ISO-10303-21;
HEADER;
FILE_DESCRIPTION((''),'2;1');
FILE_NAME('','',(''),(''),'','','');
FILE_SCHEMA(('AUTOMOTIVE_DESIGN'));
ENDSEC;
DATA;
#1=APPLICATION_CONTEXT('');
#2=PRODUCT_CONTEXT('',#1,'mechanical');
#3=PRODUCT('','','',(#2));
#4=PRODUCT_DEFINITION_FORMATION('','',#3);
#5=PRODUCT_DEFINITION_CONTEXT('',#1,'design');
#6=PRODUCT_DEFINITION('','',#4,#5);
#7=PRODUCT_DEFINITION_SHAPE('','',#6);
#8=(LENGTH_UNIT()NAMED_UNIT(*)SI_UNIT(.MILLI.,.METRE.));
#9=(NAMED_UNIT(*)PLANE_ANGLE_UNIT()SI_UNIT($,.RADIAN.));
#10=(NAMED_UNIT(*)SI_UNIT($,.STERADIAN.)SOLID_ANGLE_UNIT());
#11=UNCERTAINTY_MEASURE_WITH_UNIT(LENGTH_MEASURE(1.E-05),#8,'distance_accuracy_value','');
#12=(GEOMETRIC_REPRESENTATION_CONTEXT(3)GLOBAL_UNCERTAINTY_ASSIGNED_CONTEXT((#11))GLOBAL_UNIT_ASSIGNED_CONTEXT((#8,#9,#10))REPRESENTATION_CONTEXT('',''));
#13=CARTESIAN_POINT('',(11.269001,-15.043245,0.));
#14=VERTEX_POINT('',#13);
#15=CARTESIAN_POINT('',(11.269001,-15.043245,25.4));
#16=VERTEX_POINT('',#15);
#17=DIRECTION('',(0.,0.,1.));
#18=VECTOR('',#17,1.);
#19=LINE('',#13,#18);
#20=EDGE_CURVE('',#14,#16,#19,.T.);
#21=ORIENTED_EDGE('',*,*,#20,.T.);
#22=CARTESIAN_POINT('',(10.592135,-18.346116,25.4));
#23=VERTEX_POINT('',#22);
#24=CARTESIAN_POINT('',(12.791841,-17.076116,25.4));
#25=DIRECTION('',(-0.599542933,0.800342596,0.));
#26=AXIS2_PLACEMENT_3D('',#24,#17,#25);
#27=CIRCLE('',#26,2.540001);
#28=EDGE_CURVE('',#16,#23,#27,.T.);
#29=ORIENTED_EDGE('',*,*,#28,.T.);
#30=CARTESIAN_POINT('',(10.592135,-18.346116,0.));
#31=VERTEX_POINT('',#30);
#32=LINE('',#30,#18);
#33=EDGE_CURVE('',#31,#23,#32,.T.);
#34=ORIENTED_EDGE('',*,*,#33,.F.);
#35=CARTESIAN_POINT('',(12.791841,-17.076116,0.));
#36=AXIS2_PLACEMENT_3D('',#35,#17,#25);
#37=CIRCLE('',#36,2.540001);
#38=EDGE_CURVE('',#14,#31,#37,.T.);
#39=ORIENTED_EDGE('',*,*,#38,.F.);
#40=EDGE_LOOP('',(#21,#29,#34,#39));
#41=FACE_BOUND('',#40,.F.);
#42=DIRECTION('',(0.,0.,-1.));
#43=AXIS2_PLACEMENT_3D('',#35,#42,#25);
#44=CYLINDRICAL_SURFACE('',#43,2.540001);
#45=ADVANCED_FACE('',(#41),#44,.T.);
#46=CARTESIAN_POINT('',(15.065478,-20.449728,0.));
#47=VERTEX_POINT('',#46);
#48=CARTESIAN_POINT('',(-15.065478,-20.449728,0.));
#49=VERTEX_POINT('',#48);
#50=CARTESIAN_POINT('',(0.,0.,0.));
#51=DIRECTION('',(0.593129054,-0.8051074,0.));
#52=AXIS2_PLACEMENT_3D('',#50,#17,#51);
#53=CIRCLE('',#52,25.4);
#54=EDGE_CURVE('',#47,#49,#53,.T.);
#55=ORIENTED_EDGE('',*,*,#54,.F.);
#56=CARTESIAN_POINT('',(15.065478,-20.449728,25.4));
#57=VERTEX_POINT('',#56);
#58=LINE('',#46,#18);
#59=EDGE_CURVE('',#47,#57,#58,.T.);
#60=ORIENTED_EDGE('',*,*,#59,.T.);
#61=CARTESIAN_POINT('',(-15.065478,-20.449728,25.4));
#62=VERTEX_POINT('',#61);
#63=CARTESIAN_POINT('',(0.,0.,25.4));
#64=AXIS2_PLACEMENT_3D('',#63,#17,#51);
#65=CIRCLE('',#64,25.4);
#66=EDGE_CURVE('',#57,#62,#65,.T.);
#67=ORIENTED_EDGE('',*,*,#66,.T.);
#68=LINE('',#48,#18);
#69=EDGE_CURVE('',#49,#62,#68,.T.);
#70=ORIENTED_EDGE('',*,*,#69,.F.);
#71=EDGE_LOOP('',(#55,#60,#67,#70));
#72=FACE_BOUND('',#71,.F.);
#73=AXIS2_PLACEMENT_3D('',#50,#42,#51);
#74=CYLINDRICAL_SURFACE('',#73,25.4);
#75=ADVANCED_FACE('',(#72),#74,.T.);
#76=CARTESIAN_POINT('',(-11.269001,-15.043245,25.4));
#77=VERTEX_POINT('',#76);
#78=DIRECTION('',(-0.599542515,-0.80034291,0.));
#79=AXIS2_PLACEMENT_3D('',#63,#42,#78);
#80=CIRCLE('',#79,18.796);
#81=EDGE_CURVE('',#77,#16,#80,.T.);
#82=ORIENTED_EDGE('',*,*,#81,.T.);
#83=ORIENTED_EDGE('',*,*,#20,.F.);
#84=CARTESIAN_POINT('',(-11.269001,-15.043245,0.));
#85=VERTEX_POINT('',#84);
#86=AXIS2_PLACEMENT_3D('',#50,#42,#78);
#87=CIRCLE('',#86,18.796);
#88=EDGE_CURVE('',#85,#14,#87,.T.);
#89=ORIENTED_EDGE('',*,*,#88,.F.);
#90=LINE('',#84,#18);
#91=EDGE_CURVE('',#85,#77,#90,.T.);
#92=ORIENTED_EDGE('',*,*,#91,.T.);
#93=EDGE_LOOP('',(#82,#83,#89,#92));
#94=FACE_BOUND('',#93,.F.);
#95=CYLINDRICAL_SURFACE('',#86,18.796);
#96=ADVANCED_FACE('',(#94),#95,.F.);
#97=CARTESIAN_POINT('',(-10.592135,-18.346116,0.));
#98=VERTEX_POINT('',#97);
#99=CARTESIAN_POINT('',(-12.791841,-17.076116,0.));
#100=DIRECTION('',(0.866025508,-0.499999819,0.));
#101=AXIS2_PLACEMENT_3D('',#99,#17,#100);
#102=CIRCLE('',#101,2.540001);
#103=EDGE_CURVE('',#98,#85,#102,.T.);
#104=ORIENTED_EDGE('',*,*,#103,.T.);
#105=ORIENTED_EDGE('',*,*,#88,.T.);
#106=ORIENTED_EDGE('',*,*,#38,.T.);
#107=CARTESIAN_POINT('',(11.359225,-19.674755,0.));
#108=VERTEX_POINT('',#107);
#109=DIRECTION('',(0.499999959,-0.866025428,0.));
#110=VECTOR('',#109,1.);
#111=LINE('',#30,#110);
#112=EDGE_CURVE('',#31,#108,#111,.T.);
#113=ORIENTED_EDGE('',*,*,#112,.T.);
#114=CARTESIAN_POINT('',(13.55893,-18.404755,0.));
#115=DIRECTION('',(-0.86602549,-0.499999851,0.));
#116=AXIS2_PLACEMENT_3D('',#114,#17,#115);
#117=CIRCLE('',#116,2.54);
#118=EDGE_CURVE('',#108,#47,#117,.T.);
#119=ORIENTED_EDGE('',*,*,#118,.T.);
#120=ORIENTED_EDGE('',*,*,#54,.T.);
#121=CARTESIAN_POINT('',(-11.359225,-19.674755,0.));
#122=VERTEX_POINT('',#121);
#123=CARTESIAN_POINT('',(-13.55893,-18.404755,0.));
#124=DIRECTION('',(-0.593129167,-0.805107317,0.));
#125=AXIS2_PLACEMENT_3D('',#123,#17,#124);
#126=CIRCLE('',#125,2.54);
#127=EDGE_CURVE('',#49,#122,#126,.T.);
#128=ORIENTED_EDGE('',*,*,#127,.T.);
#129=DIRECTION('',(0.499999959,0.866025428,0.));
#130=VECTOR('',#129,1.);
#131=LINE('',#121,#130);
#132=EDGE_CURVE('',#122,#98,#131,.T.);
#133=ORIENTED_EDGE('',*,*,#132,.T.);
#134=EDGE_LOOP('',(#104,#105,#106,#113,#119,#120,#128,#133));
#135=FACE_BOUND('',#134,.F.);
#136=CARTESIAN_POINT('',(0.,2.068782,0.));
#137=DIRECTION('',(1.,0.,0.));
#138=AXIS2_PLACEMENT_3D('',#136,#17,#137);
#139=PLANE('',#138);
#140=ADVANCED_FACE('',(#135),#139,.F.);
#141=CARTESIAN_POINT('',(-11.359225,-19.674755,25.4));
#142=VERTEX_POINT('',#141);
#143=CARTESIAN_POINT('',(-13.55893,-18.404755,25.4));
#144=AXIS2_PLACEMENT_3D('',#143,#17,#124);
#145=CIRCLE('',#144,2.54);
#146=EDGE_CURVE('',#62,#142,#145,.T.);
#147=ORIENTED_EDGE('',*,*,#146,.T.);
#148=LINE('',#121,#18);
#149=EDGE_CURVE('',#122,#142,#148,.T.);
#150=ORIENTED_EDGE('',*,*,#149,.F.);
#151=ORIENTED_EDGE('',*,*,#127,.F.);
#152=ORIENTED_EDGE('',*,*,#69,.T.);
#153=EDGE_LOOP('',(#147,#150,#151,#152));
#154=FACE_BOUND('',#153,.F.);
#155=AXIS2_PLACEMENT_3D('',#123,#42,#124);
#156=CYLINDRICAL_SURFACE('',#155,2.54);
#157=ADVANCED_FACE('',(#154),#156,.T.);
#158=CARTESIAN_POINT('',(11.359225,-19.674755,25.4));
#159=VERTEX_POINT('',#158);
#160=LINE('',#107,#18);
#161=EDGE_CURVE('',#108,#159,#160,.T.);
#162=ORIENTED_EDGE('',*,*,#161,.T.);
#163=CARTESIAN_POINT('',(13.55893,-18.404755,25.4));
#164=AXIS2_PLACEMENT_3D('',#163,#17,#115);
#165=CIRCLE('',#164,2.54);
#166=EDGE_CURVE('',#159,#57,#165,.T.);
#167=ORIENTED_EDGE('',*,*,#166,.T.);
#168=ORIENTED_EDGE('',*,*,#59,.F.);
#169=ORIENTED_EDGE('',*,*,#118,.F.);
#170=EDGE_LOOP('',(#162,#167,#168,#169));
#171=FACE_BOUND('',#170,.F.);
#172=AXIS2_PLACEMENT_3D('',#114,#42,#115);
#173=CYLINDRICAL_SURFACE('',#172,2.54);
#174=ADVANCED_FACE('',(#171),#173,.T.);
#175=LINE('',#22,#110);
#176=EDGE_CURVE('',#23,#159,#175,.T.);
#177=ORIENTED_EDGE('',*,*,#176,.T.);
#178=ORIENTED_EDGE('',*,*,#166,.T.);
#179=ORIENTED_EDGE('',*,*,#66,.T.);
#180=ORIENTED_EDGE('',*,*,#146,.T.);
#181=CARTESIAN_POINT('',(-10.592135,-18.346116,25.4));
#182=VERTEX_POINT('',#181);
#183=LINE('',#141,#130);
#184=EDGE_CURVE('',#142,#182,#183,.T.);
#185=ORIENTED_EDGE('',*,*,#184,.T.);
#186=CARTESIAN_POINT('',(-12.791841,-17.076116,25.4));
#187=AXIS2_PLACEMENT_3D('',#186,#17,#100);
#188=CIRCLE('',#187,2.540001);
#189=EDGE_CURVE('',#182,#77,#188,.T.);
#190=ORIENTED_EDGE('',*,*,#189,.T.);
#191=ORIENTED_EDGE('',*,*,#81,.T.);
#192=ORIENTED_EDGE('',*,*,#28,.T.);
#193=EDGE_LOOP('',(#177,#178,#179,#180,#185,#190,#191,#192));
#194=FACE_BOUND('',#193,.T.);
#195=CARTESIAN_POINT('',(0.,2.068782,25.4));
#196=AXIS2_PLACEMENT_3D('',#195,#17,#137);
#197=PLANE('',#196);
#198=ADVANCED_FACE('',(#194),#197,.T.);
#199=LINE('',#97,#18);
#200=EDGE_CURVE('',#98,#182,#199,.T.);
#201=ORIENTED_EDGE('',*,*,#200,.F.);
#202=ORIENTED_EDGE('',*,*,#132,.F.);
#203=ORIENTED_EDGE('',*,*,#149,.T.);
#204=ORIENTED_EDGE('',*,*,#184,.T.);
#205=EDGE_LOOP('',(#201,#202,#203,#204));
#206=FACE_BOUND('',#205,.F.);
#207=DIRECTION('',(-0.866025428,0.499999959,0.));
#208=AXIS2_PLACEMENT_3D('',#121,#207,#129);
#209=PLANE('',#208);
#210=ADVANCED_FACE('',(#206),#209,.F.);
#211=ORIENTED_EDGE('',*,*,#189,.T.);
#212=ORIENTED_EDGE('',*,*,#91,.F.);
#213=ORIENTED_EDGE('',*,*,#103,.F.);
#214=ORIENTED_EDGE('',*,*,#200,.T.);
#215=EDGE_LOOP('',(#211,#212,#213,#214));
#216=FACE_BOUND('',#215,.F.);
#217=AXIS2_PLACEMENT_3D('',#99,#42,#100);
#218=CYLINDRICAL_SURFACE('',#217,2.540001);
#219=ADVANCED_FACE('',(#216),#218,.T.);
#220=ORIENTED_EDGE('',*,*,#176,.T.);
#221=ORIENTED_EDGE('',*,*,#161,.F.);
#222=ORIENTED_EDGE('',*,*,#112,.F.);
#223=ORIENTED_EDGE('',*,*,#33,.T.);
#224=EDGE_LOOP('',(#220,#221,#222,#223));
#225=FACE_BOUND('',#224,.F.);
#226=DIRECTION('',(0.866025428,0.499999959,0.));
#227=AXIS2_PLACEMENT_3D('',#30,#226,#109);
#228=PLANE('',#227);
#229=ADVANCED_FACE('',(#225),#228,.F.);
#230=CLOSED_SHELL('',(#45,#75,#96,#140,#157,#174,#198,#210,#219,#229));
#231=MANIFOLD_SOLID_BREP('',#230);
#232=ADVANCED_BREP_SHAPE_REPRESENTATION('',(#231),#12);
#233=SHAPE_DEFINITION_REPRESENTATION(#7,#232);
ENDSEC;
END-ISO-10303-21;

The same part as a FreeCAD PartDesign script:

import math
import FreeCAD as App
import Part
import Sketcher

V = App.Vector
Q = App.Units.Quantity

doc = App.newDocument("Part")
body = doc.addObject("PartDesign::Body", "Body")

sketch1 = body.newObject("Sketcher::SketchObject", "Sketch")
sketch1.AttachmentSupport = (doc.getObject("XY_Plane"), [""])
sketch1.MapMode = "FlatFace"
sketch1.addGeometry([
    Part.ArcOfCircle(Part.Circle(V(0, 0, 0), V(0, 0, 1), 18.8), math.radians(-53), math.radians(233)),
    Part.ArcOfCircle(Part.Circle(V(12.8, -17.1, 0), V(0, 0, 1), 2.5), math.radians(127), math.radians(210)),
    Part.LineSegment(V(10.6, -18.3, 0), V(11.4, -19.7, 0)),
    Part.ArcOfCircle(Part.Circle(V(13.6, -18.4, 0), V(0, 0, 1), 2.5), math.radians(-150), math.radians(-54)),
    Part.ArcOfCircle(Part.Circle(V(0, 0, 0), V(0, 0, 1), 25.4), math.radians(-54), math.radians(234)),
    Part.ArcOfCircle(Part.Circle(V(-13.6, -18.4, 0), V(0, 0, 1), 2.5), math.radians(-126), math.radians(-30)),
    Part.LineSegment(V(-11.4, -19.7, 0), V(-10.6, -18.3, 0)),
    Part.ArcOfCircle(Part.Circle(V(-12.8, -17.1, 0), V(0, 0, 1), 2.5), math.radians(-30), math.radians(53)),
], False)
sketch1.addConstraint([
    Sketcher.Constraint("Tangent", 0, 1, 1, 1),
    Sketcher.Constraint("Tangent", 1, 2, 2, 1),
    Sketcher.Constraint("Tangent", 2, 2, 3, 1),
    Sketcher.Constraint("Tangent", 3, 2, 4, 1),
    Sketcher.Constraint("Tangent", 4, 2, 5, 1),
    Sketcher.Constraint("Tangent", 5, 2, 6, 1),
    Sketcher.Constraint("Tangent", 6, 2, 7, 1),
    Sketcher.Constraint("Tangent", 7, 2, 0, 2),
    Sketcher.Constraint("Coincident", 0, 3, -1, 1),
    Sketcher.Constraint("Coincident", 4, 3, -1, 1),
    Sketcher.Constraint("Equal", 1, 3),
    Sketcher.Constraint("Equal", 3, 5),
    Sketcher.Constraint("Equal", 5, 7),
    Sketcher.Constraint("Symmetric", 2, 2, 5, 2, -2),
    Sketcher.Constraint("Radius", 4, Q("1 in")),
    Sketcher.Constraint("Radius", 1, Q("0.1 in")),
    Sketcher.Constraint("Radius", 0, Q("0.74 in")),
    Sketcher.Constraint("Angle", 2, Q("-60.000003 deg")),
    Sketcher.Constraint("DistanceX", -1, 1, 0, 1, Q("11.269001 mm")),
])
pad1 = body.newObject("PartDesign::Pad", "Pad")
pad1.Profile = sketch1
pad1.Length = Q("1 in")

doc.recompute()
